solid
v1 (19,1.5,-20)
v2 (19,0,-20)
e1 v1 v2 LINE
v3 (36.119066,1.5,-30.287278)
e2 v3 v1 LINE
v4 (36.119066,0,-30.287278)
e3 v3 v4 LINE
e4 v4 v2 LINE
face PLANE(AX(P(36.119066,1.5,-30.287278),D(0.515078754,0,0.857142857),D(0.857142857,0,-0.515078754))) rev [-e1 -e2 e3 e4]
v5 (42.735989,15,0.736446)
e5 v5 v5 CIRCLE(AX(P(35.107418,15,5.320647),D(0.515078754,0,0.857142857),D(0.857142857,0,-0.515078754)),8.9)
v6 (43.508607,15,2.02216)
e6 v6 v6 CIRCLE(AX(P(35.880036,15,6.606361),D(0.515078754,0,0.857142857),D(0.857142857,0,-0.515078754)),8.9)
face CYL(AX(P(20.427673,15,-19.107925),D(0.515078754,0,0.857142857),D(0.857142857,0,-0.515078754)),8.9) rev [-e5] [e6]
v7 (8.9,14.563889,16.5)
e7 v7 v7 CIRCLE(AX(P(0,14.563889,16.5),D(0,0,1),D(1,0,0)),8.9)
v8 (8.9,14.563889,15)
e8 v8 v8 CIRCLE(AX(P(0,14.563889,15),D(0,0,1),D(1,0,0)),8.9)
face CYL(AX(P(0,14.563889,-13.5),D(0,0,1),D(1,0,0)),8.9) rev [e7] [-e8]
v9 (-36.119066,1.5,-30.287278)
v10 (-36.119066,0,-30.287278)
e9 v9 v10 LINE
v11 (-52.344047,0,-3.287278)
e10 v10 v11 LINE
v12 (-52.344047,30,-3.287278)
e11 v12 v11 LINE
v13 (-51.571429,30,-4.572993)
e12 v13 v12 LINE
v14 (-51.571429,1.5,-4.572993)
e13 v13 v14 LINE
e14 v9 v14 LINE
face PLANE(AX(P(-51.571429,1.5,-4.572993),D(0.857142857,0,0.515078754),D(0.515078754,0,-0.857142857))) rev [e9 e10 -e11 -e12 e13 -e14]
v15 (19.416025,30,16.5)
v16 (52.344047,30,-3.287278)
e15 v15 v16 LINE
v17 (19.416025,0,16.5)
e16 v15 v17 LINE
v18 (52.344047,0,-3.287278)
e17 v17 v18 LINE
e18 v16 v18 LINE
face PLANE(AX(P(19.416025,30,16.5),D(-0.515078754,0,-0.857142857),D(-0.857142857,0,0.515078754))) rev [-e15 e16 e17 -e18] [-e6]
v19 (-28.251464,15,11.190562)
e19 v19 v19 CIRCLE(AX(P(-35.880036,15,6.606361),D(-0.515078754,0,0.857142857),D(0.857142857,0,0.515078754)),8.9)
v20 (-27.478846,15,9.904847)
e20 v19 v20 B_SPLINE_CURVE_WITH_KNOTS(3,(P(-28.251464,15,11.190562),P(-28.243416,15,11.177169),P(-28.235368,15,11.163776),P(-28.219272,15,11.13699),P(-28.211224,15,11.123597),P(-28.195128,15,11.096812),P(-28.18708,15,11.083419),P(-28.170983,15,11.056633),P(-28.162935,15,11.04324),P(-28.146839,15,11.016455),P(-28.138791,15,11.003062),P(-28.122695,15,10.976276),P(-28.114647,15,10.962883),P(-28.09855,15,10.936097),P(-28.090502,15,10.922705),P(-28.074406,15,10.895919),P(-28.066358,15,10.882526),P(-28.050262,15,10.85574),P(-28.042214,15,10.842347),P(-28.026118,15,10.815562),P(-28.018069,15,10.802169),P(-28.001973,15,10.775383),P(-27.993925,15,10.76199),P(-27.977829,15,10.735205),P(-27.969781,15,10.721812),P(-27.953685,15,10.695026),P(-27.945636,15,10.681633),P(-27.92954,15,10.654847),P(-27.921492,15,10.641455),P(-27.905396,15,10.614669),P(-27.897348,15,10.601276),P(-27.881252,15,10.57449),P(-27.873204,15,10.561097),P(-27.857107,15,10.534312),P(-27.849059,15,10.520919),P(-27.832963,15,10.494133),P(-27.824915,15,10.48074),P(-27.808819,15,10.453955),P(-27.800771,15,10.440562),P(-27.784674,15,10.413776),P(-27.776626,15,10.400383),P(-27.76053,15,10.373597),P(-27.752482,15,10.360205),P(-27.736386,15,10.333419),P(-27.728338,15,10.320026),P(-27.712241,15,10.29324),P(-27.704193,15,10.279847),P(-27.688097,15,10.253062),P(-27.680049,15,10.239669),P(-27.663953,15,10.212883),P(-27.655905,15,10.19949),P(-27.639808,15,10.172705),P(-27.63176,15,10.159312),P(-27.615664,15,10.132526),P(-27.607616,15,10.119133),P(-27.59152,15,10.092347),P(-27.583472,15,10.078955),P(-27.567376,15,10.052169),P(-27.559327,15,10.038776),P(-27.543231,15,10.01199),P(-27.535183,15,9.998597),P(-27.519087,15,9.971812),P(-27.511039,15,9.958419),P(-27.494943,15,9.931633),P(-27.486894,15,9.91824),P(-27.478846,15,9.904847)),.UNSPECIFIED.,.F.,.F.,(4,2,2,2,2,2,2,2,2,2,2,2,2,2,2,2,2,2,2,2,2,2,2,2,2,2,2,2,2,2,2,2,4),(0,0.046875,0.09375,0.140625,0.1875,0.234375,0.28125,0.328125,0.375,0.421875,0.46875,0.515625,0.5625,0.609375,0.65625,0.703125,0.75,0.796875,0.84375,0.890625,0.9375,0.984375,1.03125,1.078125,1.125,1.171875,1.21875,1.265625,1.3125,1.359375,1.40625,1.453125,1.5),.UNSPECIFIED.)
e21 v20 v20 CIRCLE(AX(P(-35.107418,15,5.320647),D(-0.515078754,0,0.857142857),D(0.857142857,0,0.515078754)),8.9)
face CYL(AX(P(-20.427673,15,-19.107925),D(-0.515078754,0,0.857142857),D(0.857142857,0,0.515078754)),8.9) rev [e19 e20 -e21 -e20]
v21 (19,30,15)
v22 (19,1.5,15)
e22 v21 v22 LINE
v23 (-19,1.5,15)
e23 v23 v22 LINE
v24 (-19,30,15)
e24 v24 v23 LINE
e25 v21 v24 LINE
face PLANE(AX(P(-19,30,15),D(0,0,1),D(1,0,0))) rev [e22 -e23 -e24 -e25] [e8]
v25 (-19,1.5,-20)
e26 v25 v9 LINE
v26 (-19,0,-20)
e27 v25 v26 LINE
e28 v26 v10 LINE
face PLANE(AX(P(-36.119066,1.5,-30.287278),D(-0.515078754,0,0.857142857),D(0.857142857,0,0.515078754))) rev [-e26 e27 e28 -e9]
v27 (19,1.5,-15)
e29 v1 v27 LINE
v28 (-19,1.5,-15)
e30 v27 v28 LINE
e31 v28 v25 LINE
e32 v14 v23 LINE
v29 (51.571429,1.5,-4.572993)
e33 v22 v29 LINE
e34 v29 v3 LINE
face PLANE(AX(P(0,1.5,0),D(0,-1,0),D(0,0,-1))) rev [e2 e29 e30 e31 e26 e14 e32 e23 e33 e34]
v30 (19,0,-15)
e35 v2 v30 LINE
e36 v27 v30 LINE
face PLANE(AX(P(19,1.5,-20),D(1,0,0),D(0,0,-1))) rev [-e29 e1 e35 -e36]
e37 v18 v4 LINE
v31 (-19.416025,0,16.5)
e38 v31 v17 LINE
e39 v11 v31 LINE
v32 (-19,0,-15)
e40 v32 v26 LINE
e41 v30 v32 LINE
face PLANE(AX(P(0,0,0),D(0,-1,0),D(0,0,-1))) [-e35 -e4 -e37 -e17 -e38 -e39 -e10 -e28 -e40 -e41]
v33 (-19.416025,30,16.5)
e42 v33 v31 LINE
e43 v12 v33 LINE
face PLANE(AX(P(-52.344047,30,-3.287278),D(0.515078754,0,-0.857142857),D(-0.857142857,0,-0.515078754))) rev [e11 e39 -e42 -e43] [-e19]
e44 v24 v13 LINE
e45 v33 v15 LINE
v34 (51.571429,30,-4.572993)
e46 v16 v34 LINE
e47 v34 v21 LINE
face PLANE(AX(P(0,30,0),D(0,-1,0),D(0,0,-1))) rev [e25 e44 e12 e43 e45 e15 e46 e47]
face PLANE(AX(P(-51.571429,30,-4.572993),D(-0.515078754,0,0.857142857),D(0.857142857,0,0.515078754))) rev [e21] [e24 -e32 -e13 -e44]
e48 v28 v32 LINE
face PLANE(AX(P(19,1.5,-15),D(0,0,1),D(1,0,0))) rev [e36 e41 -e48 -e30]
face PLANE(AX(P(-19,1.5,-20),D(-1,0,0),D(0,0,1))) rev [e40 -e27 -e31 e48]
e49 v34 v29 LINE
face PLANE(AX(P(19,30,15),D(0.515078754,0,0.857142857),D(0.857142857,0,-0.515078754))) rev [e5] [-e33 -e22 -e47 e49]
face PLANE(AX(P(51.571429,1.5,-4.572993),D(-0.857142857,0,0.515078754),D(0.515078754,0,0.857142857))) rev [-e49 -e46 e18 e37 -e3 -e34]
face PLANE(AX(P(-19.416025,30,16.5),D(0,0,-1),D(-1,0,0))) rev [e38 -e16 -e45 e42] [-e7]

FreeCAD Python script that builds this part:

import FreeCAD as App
import Part
import Sketcher

doc = App.newDocument("Part")
body = doc.addObject("PartDesign::Body", "Body")

# Sketch on XZ plane
sketch1 = body.newObject("Sketcher::SketchObject", "Sketch")
sketch1.AttachmentSupport = (doc.getObject("XZ_Plane"), [""])
sketch1.MapMode = "FlatFace"
sketch1.addGeometry([
    Part.LineSegment(App.Vector(-52, -5, 0), App.Vector(-19, 15, 0)),  # 0
    Part.LineSegment(App.Vector(-19, 15, 0), App.Vector(19, 15, 0)),  # 1
    Part.LineSegment(App.Vector(19, 15, 0), App.Vector(52, -5, 0)),  # 2
    Part.LineSegment(App.Vector(52, -5, 0), App.Vector(36, -30, 0)),  # 3
    Part.LineSegment(App.Vector(36, -30, 0), App.Vector(19, -20, 0)),  # 4
    Part.LineSegment(App.Vector(19, -20, 0), App.Vector(19, -15, 0)),  # 5
    Part.LineSegment(App.Vector(19, -15, 0), App.Vector(-19, -15, 0)),  # 6
    Part.LineSegment(App.Vector(-19, -15, 0), App.Vector(-19, -20, 0)),  # 7
    Part.LineSegment(App.Vector(-19, -20, 0), App.Vector(-36, -30, 0)),  # 8
    Part.LineSegment(App.Vector(-36, -30, 0), App.Vector(-52, -5, 0)),  # 9
], False)
sketch1.addConstraint([
    Sketcher.Constraint("Coincident", 0, 2, 1, 1),
    Sketcher.Constraint("Coincident", 1, 2, 2, 1),
    Sketcher.Constraint("Coincident", 2, 2, 3, 1),
    Sketcher.Constraint("Coincident", 3, 2, 4, 1),
    Sketcher.Constraint("Coincident", 4, 2, 5, 1),
    Sketcher.Constraint("Coincident", 5, 2, 6, 1),
    Sketcher.Constraint("Coincident", 6, 2, 7, 1),
    Sketcher.Constraint("Coincident", 7, 2, 8, 1),
    Sketcher.Constraint("Coincident", 8, 2, 9, 1),
    Sketcher.Constraint("Coincident", 9, 2, 0, 1),
    Sketcher.Constraint("Horizontal", 1),
    Sketcher.Constraint("Vertical", 5),
    Sketcher.Constraint("Horizontal", 6),
    Sketcher.Constraint("Vertical", 7),
    Sketcher.Constraint("Symmetric", 0, 2, 5, 2, -1, 1),
    Sketcher.Constraint("Symmetric", 4, 2, 7, 2, -2),
    Sketcher.Constraint("Symmetric", 3, 2, 8, 2, -2),
    Sketcher.Constraint("Symmetric", 2, 2, 9, 2, -2),
    Sketcher.Constraint("Perpendicular", 2, 3),
    Sketcher.Constraint("Perpendicular", 3, 4),
    Sketcher.Constraint("Parallel", 0, 8),
    Sketcher.Constraint("DistanceX", 1, 1, 1, 2, 38.0),
    Sketcher.Constraint("DistanceY", 5, 1, 5, 2, 5.0),
    Sketcher.Constraint("Distance", 0, 38.0),
    Sketcher.Constraint("Distance", 3, 30.0),
    Sketcher.Constraint("DistanceY", -1, 1, 0, 2, 15.0),
])
pad1 = body.newObject("PartDesign::Pad", "Pad")
pad1.Profile = sketch1
pad1.Length = 1.5
pad1.Reversed = True

# Sketch on XZ plane
sketch2 = body.newObject("Sketcher::SketchObject", "Sketch001")
sketch2.AttachmentSupport = (doc.getObject("XZ_Plane"), [""])
sketch2.MapMode = "FlatFace"
sketch2.addGeometry([
    Part.LineSegment(App.Vector(-51.6, -4.6, 0), App.Vector(-52.3, -3.3, 0)),  # 0
    Part.LineSegment(App.Vector(-52.3, -3.3, 0), App.Vector(-19.4, 16.5, 0)),  # 1
    Part.LineSegment(App.Vector(-19.4, 16.5, 0), App.Vector(19.4, 16.5, 0)),  # 2
    Part.LineSegment(App.Vector(19.4, 16.5, 0), App.Vector(52.3, -3.3, 0)),  # 3
    Part.LineSegment(App.Vector(52.3, -3.3, 0), App.Vector(51.6, -4.6, 0)),  # 4
    Part.LineSegment(App.Vector(51.6, -4.6, 0), App.Vector(19, 15, 0)),  # 5
    Part.LineSegment(App.Vector(19, 15, 0), App.Vector(-19, 15, 0)),  # 6
    Part.LineSegment(App.Vector(-19, 15, 0), App.Vector(-51.6, -4.6, 0)),  # 7
], False)
sketch2.addConstraint([
    Sketcher.Constraint("Coincident", 0, 2, 1, 1),
    Sketcher.Constraint("Coincident", 1, 2, 2, 1),
    Sketcher.Constraint("Coincident", 2, 2, 3, 1),
    Sketcher.Constraint("Coincident", 3, 2, 4, 1),
    Sketcher.Constraint("Coincident", 4, 2, 5, 1),
    Sketcher.Constraint("Coincident", 5, 2, 6, 1),
    Sketcher.Constraint("Coincident", 6, 2, 7, 1),
    Sketcher.Constraint("Coincident", 7, 2, 0, 1),
    Sketcher.Constraint("Horizontal", 2),
    Sketcher.Constraint("Horizontal", 6),
    Sketcher.Constraint("Symmetric", 0, 2, 3, 2, -2),
    Sketcher.Constraint("Symmetric", 4, 2, 7, 2, -2),
    Sketcher.Constraint("Perpendicular", 0, 1),
    Sketcher.Constraint("Perpendicular", 3, 4),
    Sketcher.Constraint("Perpendicular", 4, 5),
    Sketcher.Constraint("Parallel", 1, 7),
    Sketcher.Constraint("DistanceX", 6, 2, 6, 1, 38.0),
    Sketcher.Constraint("Distance", 5, 38.0),
    Sketcher.Constraint("DistanceY", -1, 1, 5, 2, 15.0),
    Sketcher.Constraint("Distance", 0, 1.5),
    Sketcher.Constraint("DistanceY", -1, 1, 1, 2, 16.5),
    Sketcher.Constraint("DistanceX", 2, 1, 2, 2, 38.83205),
])
pad2 = body.newObject("PartDesign::Pad", "Pad001")
pad2.Profile = sketch2
pad2.Length = 30
pad2.Reversed = True

# Sketch on XY plane
sketch3 = body.newObject("Sketcher::SketchObject", "Sketch002")
sketch3.AttachmentSupport = (doc.getObject("XY_Plane"), [""])
sketch3.MapMode = "FlatFace"
sketch3.AttachmentOffset = App.Placement(App.Vector(0, 0, 16.5), App.Rotation())
sketch3.addGeometry(Part.Circle(App.Vector(0, 15, 0), App.Vector(0, 0, 1), 9), False)
sketch3.addConstraint([
    Sketcher.Constraint("PointOnObject", 0, 3, -2),
    Sketcher.Constraint("Diameter", 0, 17.8),
    Sketcher.Constraint("DistanceY", -1, 1, 0, 3, 14.563889),
])
pocket1 = body.newObject("PartDesign::Pocket", "Pocket")
pocket1.Profile = sketch3
pocket1.Length = 30

# Sketch on an angled plane
sketch4 = body.newObject("Sketcher::SketchObject", "Sketch003")
sketch4.Placement = App.Placement(App.Vector(12.435876, 0, 20.694548), App.Rotation(App.Vector(0.857142857, 0, -0.515078754), App.Vector(0, 1, 0), App.Vector(0.515078754, 0, 0.857142857), "ZXY"))
sketch4.addGeometry(Part.Circle(App.Vector(27, 15, 0), App.Vector(0, 0, 1), 9), False)
sketch4.addConstraint([
    Sketcher.Constraint("Diameter", 0, 17.8),
    Sketcher.Constraint("DistanceY", -1, 1, 0, 3, 15.0),
    Sketcher.Constraint("DistanceX", -1, 1, 0, 3, 27.35152),
])
pocket2 = body.newObject("PartDesign::Pocket", "Pocket001")
pocket2.Profile = sketch4
pocket2.Length = 30

# Sketch on an angled plane
sketch5 = body.newObject("Sketcher::SketchObject", "Sketch004")
sketch5.Placement = App.Placement(App.Vector(-12.435876, 0, 20.694548), App.Rotation(App.Vector(0.857142857, 0, 0.515078754), App.Vector(0, 1, 0), App.Vector(-0.515078754, 0, 0.857142857), "ZXY"))
sketch5.addGeometry(Part.Circle(App.Vector(-27, 15, 0), App.Vector(0, 0, 1), 9), False)
sketch5.addConstraint([
    Sketcher.Constraint("Diameter", 0, 17.8),
    Sketcher.Constraint("DistanceY", -1, 1, 0, 3, 15.0),
    Sketcher.Constraint("DistanceX", 0, 3, -1, 1, 27.35152),
])
pocket3 = body.newObject("PartDesign::Pocket", "Pocket002")
pocket3.Profile = sketch5
pocket3.Length = 30

doc.recompute()
